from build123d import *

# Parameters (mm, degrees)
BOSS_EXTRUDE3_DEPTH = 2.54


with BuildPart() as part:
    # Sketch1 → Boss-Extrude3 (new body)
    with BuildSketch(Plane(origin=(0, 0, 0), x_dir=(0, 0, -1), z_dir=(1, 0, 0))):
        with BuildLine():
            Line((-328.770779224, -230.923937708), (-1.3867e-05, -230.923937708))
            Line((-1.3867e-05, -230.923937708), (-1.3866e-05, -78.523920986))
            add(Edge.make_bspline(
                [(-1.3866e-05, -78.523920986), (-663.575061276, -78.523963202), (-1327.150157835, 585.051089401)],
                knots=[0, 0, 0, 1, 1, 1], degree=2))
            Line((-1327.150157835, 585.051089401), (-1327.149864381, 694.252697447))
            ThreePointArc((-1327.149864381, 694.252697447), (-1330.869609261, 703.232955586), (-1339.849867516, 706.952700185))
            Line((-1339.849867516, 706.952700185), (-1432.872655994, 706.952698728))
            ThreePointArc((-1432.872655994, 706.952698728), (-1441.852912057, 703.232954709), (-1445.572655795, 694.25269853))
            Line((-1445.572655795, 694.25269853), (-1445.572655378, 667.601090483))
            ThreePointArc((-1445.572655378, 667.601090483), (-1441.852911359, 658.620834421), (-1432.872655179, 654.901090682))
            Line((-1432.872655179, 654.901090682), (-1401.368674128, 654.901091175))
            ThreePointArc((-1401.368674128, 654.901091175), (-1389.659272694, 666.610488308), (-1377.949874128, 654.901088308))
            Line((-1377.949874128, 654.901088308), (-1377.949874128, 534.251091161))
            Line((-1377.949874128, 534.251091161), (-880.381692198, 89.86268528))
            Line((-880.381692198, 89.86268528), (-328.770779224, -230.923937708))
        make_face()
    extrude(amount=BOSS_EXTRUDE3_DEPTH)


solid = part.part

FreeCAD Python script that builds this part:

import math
import FreeCAD as App
import Part
import Sketcher
Q = App.Units.Quantity

doc = App.newDocument("Part")
body = doc.addObject("PartDesign::Body", "Body")

sketch1 = body.newObject("Sketcher::SketchObject", "Sketch")
sketch1.AttachmentSupport = (doc.getObject("YZ_Plane"), [""])
sketch1.MapMode = "FlatFace"
sketch1.addGeometry([
    Part.LineSegment(App.Vector(-230.923938, 328.770779, 0), App.Vector(-230.923938, 0.000014, 0)),
    Part.LineSegment(App.Vector(-230.923938, 0.000014, 0), App.Vector(-78.523921, 0.000014, 0)),
    Part.BSplineCurve([App.Vector(-78.523921, 0.000014, 0), App.Vector(-78.523963, 663.575061, 0), App.Vector(585.051089, 1327.150158, 0)], [3, 3], [0, 1], False, 2, [1, 1, 1], False),
    Part.LineSegment(App.Vector(585.051089, 1327.150158, 0), App.Vector(694.252697, 1327.149864, 0)),
    Part.ArcOfCircle(Part.Circle(App.Vector(694.252697, 1339.849867, 0), App.Vector(0, 0, 1), 12.700003), math.radians(-89.999999), math.radians(0.000001)),
    Part.LineSegment(App.Vector(706.9527, 1339.849868, 0), App.Vector(706.952699, 1432.872656, 0)),
    Part.ArcOfCircle(Part.Circle(App.Vector(694.252699, 1432.872656, 0), App.Vector(0, 0, 1), 12.7), math.radians(0.000001), math.radians(90.000001)),
    Part.LineSegment(App.Vector(694.252699, 1445.572656, 0), App.Vector(667.60109, 1445.572655, 0)),
    Part.ArcOfCircle(Part.Circle(App.Vector(667.601091, 1432.872655, 0), App.Vector(0, 0, 1), 12.7), math.radians(90.000001), math.radians(180.000001)),
    Part.LineSegment(App.Vector(654.901091, 1432.872655, 0), App.Vector(654.901091, 1401.368674, 0)),
    Part.ArcOfCircle(Part.Circle(App.Vector(654.901088, 1389.659274, 0), App.Vector(0, 0, 1), 11.7094), math.radians(-90), math.radians(89.999986)),
    Part.LineSegment(App.Vector(654.901088, 1377.949874, 0), App.Vector(534.251091, 1377.949874, 0)),
    Part.LineSegment(App.Vector(534.251091, 1377.949874, 0), App.Vector(89.862685, 880.381692, 0)),
    Part.LineSegment(App.Vector(89.862685, 880.381692, 0), App.Vector(-230.923938, 328.770779, 0)),
], False)
sketch1.addConstraint([
    Sketcher.Constraint("Block", 2),
    Sketcher.Constraint("Coincident", 0, 2, 1, 1),
    Sketcher.Constraint("Coincident", 1, 2, 2, 1),
    Sketcher.Constraint("Coincident", 2, 2, 3, 1),
    Sketcher.Constraint("Coincident", 3, 2, 4, 1),
    Sketcher.Constraint("Tangent", 4, 2, 5, 1),
    Sketcher.Constraint("Tangent", 5, 2, 6, 1),
    Sketcher.Constraint("Tangent", 6, 2, 7, 1),
    Sketcher.Constraint("Tangent", 7, 2, 8, 1),
    Sketcher.Constraint("Tangent", 8, 2, 9, 1),
    Sketcher.Constraint("Coincident", 9, 2, 10, 2),
    Sketcher.Constraint("Tangent", 10, 1, 11, 1),
    Sketcher.Constraint("Coincident", 11, 2, 12, 1),
    Sketcher.Constraint("Coincident", 12, 2, 13, 1),
    Sketcher.Constraint("Coincident", 13, 2, 0, 1),
    Sketcher.Constraint("Vertical", 0),
    Sketcher.Constraint("Horizontal", 1),
    Sketcher.Constraint("Vertical", 5),
    Sketcher.Constraint("Horizontal", 7),
    Sketcher.Constraint("Vertical", 9),
    Sketcher.Constraint("Horizontal", 11),
    Sketcher.Constraint("Equal", 6, 8),
    Sketcher.Constraint("Vertical", 4, 3, 6, 3),
    Sketcher.Constraint("Vertical", 6, 3, 3, 2),
    Sketcher.Constraint("Radius", 4, Q("0.5000001 in")),
    Sketcher.Constraint("Radius", 10, Q("0.461 in")),
    Sketcher.Constraint("DistanceX", 11, 2, 11, 1, Q("4.7499999 in")),
    Sketcher.Constraint("DistanceX", 10, 3, 8, 3, Q("0.5000001 in")),
    Sketcher.Constraint("DistanceX", 7, 2, 7, 1, Q("26.651608 mm")),
    Sketcher.Constraint("DistanceY", 5, 1, 5, 2, Q("93.022788 mm")),
    Sketcher.Constraint("DistanceY", 9, 2, 9, 1, Q("31.503981 mm")),
    Sketcher.Constraint("DistanceX", -1, 1, 6, 3, Q("694.252699 mm")),
    Sketcher.Constraint("Distance", 12, Q("667.124539 mm")),
    Sketcher.Constraint("Distance", 13, Q("638.105522 mm")),
    Sketcher.Constraint("DistanceX", 1, 1, 1, 2, Q("152.400017 mm")),
    Sketcher.Constraint("DistanceY", 0, 2, 0, 1, Q("328.770765 mm")),
    Sketcher.Constraint("DistanceY", 0, 2, 10, 3, Q("1389.65926 mm")),
])
pad1 = body.newObject("PartDesign::Pad", "Pad")
pad1.Profile = sketch1
pad1.Length = Q("0.1 in")

doc.recompute()
